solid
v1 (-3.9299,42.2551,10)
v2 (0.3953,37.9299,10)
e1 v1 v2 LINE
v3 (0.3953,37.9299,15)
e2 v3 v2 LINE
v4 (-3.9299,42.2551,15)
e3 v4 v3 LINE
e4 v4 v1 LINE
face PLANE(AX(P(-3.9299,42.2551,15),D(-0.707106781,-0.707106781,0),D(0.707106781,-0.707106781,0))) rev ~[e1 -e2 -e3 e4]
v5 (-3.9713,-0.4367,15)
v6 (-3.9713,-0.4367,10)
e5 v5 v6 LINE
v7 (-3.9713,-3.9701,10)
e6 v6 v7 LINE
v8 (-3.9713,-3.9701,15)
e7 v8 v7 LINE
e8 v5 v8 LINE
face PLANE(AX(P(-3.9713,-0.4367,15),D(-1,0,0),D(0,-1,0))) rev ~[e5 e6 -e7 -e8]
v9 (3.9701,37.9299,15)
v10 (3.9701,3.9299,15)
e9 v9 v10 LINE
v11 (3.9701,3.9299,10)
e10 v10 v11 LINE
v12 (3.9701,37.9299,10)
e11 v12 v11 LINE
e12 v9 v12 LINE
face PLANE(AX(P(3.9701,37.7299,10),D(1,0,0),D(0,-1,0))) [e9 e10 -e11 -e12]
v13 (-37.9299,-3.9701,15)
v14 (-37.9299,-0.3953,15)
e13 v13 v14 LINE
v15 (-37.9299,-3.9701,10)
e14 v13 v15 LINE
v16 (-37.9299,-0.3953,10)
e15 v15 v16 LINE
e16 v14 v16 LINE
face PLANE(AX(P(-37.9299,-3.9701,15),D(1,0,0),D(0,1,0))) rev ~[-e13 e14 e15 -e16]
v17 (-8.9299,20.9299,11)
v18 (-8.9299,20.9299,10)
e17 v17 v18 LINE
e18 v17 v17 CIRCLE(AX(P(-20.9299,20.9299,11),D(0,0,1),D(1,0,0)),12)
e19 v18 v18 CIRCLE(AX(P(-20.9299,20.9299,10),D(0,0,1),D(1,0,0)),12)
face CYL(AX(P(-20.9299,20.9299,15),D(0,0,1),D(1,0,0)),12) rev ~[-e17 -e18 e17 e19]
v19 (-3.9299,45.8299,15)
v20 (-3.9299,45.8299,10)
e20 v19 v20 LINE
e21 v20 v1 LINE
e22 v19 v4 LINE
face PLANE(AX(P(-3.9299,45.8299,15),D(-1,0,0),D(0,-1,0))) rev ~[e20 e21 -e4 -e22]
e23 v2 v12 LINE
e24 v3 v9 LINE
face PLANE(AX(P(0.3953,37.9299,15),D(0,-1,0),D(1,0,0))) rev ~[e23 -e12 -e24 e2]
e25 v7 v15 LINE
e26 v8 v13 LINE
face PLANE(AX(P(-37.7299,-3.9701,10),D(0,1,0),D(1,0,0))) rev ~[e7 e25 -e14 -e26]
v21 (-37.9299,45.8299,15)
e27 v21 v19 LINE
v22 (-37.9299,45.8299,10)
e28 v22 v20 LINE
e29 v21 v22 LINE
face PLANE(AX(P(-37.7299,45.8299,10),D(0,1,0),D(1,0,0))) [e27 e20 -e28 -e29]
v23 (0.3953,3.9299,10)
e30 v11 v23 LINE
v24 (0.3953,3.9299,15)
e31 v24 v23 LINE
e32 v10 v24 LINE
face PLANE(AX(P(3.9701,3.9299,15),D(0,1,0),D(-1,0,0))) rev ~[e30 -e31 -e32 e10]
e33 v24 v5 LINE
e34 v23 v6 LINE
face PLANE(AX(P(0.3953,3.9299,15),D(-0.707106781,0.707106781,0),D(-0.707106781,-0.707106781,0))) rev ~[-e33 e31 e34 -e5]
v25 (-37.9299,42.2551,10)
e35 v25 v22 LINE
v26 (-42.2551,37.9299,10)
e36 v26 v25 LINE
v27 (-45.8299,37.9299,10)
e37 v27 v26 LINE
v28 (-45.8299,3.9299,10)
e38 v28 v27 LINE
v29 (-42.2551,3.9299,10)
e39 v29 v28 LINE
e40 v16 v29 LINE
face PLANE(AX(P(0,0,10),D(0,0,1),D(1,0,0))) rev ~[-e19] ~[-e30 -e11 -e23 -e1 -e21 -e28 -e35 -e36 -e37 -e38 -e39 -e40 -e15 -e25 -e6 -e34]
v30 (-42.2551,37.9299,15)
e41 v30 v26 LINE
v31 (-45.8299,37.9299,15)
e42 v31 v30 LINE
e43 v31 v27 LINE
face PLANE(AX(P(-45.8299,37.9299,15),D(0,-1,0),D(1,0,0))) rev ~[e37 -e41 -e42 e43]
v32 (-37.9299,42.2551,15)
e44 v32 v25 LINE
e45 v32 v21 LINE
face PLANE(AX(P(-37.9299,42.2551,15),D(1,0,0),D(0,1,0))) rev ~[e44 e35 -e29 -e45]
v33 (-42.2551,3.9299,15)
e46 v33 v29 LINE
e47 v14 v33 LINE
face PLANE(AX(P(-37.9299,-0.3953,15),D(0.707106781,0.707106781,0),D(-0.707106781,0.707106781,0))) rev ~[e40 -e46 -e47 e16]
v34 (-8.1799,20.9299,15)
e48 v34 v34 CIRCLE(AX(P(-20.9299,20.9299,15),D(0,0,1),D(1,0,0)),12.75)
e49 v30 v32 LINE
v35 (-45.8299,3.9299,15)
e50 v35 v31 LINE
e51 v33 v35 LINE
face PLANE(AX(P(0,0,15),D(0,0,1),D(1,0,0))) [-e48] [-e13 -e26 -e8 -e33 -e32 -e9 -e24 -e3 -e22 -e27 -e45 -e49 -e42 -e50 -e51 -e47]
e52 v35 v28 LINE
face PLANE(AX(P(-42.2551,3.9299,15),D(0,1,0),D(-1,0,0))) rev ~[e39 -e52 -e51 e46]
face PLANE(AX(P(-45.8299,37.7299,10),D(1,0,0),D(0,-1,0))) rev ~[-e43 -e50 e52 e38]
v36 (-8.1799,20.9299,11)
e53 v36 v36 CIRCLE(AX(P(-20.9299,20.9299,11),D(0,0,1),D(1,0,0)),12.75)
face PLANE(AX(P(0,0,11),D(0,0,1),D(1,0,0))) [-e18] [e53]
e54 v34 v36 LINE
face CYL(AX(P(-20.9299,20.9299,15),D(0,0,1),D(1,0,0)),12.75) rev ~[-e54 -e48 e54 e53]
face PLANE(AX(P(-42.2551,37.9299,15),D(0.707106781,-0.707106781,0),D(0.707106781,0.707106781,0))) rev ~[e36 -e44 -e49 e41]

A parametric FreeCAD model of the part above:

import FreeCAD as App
import Part
import Sketcher
Q = App.Units.Quantity


def add_polygon(sketch, points):
    """Adds a closed chain of lines whose ends are joined by coincident constraints."""
    first, n = sketch.GeometryCount, len(points)
    for a, b in zip(points, points[1:] + points[:1]):
        sketch.addGeometry(Part.LineSegment(App.Vector(*a, 0), App.Vector(*b, 0)), False)
    for i in range(n):
        sketch.addConstraint(Sketcher.Constraint("Coincident", first + i, 2, first + (i + 1) % n, 1))

doc = App.newDocument("Part")
params = doc.addObject("Spreadsheet::Sheet", "Params")
for row, (alias, value) in enumerate([
    ("sketch1_width", "33.6 mm"),
    ("pad1_length", "5 mm"),
    ("sketch2_width", "0.2 mm"),
    ("pad2_length", "5 mm"),
    ("sketch3_diameter", "24 mm"),
    ("sketch4_diameter", "25.5 mm"),
    ("sketch4_diameter2", "24 mm"),
    ("pocket2_length", "4 mm"),
], start=1):
    params.set(f"A{row}", alias)
    params.set(f"B{row}", "=" + value)
    params.setAlias(f"B{row}", alias)

body = doc.addObject("PartDesign::Body", "Body")

sketch1 = body.newObject("Sketcher::SketchObject", "Sketch")
sketch1.AttachmentSupport = (doc.getObject("XY_Plane"), [""])
sketch1.MapMode = "FlatFace"
sketch1.AttachmentOffset = App.Placement(App.Vector(0, 0, 10), App.Rotation())
add_polygon(sketch1, [(-4.171, -0.354), (0.312, 4.13), (3.97, 4.13), (3.97, 37.73), (0.312, 37.73), (-4.13, 42.172), (-4.13, 45.83), (-37.73, 45.83), (-37.73, 42.172), (-42.172, 37.73), (-45.83, 37.73), (-45.83, 4.13), (-42.172, 4.13), (-37.689, -0.354), (-37.73, -0.354), (-37.73, -3.97), (-4.171, -3.97)])
sketch1.addConstraint([
    Sketcher.Constraint("Horizontal", 1),
    Sketcher.Constraint("Vertical", 2),
    Sketcher.Constraint("Horizontal", 3),
    Sketcher.Constraint("Vertical", 5),
    Sketcher.Constraint("Horizontal", 6),
    Sketcher.Constraint("Vertical", 7),
    Sketcher.Constraint("Horizontal", 9),
    Sketcher.Constraint("Vertical", 10),
    Sketcher.Constraint("Horizontal", 11),
    Sketcher.Constraint("Horizontal", 13),
    Sketcher.Constraint("Vertical", 14),
    Sketcher.Constraint("Horizontal", 15),
    Sketcher.Constraint("Vertical", 16),
    Sketcher.Constraint("Perpendicular", 0, 4),
    Sketcher.Constraint("Perpendicular", 4, 8),
    Sketcher.Constraint("Perpendicular", 8, 12),
    Sketcher.Constraint("Horizontal", 4, 2, 7, 2),
    Sketcher.Constraint("Horizontal", 3, 2, 8, 2),
    Sketcher.Constraint("Horizontal", 1, 2, 10, 2),
    Sketcher.Constraint("Horizontal", 13, 2, 16, 2),
    Sketcher.Constraint("Vertical", 0, 2, 3, 2),
    Sketcher.Constraint("Vertical", 8, 2, 11, 2),
    Sketcher.Constraint("Vertical", 7, 2, 13, 2),
    Sketcher.Constraint("Equal", 3, 9),
    Sketcher.Constraint("Equal", 6, 2),
    Sketcher.Constraint("Equal", 11, 5),
    Sketcher.Constraint("Equal", 4, 8),
    Sketcher.Constraint("DistanceX", 6, 2, 6, 1, Q("33.6 mm")),
    Sketcher.Constraint("DistanceX", 4, 2, 2, 2, Q("8.1 mm")),
    Sketcher.Constraint("DistanceY", 14, 2, 11, 2, Q("8.1 mm")),
    Sketcher.Constraint("DistanceY", -1, 1, 0, 2, Q("4.13 mm")),
    Sketcher.Constraint("DistanceX", -1, 1, 1, 2, Q("3.97 mm")),
    Sketcher.Constraint("Distance", 0, Q("6.341 mm")),
    Sketcher.Constraint("DistanceX", 1, 1, 1, 2, Q("3.6577 mm")),
])
sketch1.setExpression("Constraints[44]", "Params.sketch1_width")
pad1 = body.newObject("PartDesign::Pad", "Pad")
pad1.Profile = sketch1
pad1.setExpression("Length", "Params.pad1_length")

sketch2 = body.newObject("Sketcher::SketchObject", "Sketch001")
sketch2.AttachmentSupport = (doc.getObject("XY_Plane"), [""])
sketch2.MapMode = "FlatFace"
sketch2.AttachmentOffset = App.Placement(App.Vector(0, 0, 15), App.Rotation())
add_polygon(sketch2, [(3.97, 3.93), (3.97, 4.13), (0.312, 4.13), (-4.171, -0.354), (-4.171, -3.97), (-3.971, -3.97), (-3.971, -0.437), (0.395, 3.93)])
add_polygon(sketch2, [(-3.93, 45.83), (-4.13, 45.83), (-4.13, 42.172), (0.312, 37.73), (3.97, 37.73), (3.97, 37.93), (0.395, 37.93), (-3.93, 42.255)])
add_polygon(sketch2, [(-42.172, 37.73), (-37.73, 42.172), (-37.73, 45.83), (-37.93, 45.83), (-37.93, 42.255), (-42.255, 37.93), (-45.83, 37.93), (-45.83, 37.73)])
add_polygon(sketch2, [(-42.172, 4.13), (-45.83, 4.13), (-45.83, 3.93), (-42.255, 3.93), (-37.93, -0.395), (-37.93, -3.97), (-37.73, -3.97), (-37.73, -0.354), (-37.688, -0.354)])
sketch2.addConstraint([
    Sketcher.Constraint("Vertical", 0),
    Sketcher.Constraint("Horizontal", 1),
    Sketcher.Constraint("Vertical", 3),
    Sketcher.Constraint("Horizontal", 4),
    Sketcher.Constraint("Vertical", 5),
    Sketcher.Constraint("Horizontal", 7),
    Sketcher.Constraint("Horizontal", 8),
    Sketcher.Constraint("Vertical", 9),
    Sketcher.Constraint("Horizontal", 11),
    Sketcher.Constraint("Vertical", 12),
    Sketcher.Constraint("Horizontal", 13),
    Sketcher.Constraint("Vertical", 15),
    Sketcher.Constraint("Vertical", 17),
    Sketcher.Constraint("Horizontal", 18),
    Sketcher.Constraint("Vertical", 19),
    Sketcher.Constraint("Horizontal", 21),
    Sketcher.Constraint("Vertical", 22),
    Sketcher.Constraint("Horizontal", 23),
    Sketcher.Constraint("Horizontal", 24),
    Sketcher.Constraint("Vertical", 25),
    Sketcher.Constraint("Horizontal", 26),
    Sketcher.Constraint("Vertical", 28),
    Sketcher.Constraint("Horizontal", 29),
    Sketcher.Constraint("Vertical", 30),
    Sketcher.Constraint("Horizontal", 31),
    Sketcher.Constraint("Parallel", 2, 6),
    Sketcher.Constraint("Perpendicular", 6, 10),
    Sketcher.Constraint("Parallel", 10, 14),
    Sketcher.Constraint("Perpendicular", 14, 16),
    Sketcher.Constraint("Parallel", 16, 20),
    Sketcher.Constraint("Perpendicular", 20, 27),
    Sketcher.Constraint("Parallel", 27, 32),
    Sketcher.Constraint("Horizontal", 9, 2, 16, 2),
    Sketcher.Constraint("Horizontal", 15, 2, 17, 2),
    Sketcher.Constraint("Horizontal", 14, 2, 19, 2),
    Sketcher.Constraint("Horizontal", 13, 2, 20, 2),
    Sketcher.Constraint("Horizontal", 11, 2, 22, 2),
    Sketcher.Constraint("Horizontal", 1, 2, 24, 2),
    Sketcher.Constraint("Horizontal", 7, 2, 25, 2),
    Sketcher.Constraint("Horizontal", 4, 2, 28, 2),
    Sketcher.Constraint("Horizontal", 2, 2, 30, 2),
    Sketcher.Constraint("Vertical", 1, 2, 10, 2),
    Sketcher.Constraint("Vertical", 7, 2, 11, 2),
    Sketcher.Constraint("Vertical", 6, 2, 13, 2),
    Sketcher.Constraint("Vertical", 22, 2, 24, 2),
    Sketcher.Constraint("Vertical", 20, 2, 26, 2),
    Sketcher.Constraint("Vertical", 19, 2, 27, 2),
    Sketcher.Constraint("Vertical", 17, 2, 29, 2),
    Sketcher.Constraint("Vertical", 23, 2, 32, 2),
    Sketcher.Constraint("Equal", 4, 8),
    Sketcher.Constraint("Equal", 8, 18),
    Sketcher.Constraint("Equal", 13, 21),
    Sketcher.Constraint("Equal", 11, 23),
    Sketcher.Constraint("Equal", 29, 0),
    Sketcher.Constraint("Equal", 24, 9),
    Sketcher.Constraint("Equal", 0, 12),
    Sketcher.Constraint("Equal", 19, 28),
    Sketcher.Constraint("DistanceX", 4, 1, 4, 2, Q("0.2 mm")),
    Sketcher.Constraint("DistanceX", 18, 2, 15, 2, Q("34 mm")),
    Sketcher.Constraint("DistanceY", 25, 2, 21, 2, Q("34 mm")),
    Sketcher.Constraint("DistanceY", 3, 2, 1, 2, Q("8.1 mm")),
    Sketcher.Constraint("DistanceX", -1, 1, 0, 2, Q("3.97 mm")),
    Sketcher.Constraint("DistanceY", -1, 1, 0, 2, Q("4.13 mm")),
    Sketcher.Constraint("Distance", 2, Q("6.341 mm")),
    Sketcher.Constraint("DistanceX", 1, 2, 1, 1, Q("3.6577 mm")),
    Sketcher.Constraint("DistanceX", 7, 1, 7, 2, Q("3.5748 mm")),
])
sketch2.setExpression("Constraints[90]", "Params.sketch2_width")
pad2 = body.newObject("PartDesign::Pad", "Pad001")
pad2.Profile = sketch2
pad2.setExpression("Length", "Params.pad2_length")
pad2.Reversed = True

sketch3 = body.newObject("Sketcher::SketchObject", "Sketch002")
sketch3.AttachmentSupport = (doc.getObject("XY_Plane"), [""])
sketch3.MapMode = "FlatFace"
sketch3.AttachmentOffset = App.Placement(App.Vector(0, 0, 15), App.Rotation())
sketch3.addGeometry(Part.Circle(App.Vector(-21, 21, 0), App.Vector(0, 0, 1), 12), False)
sketch3.addConstraint([
    Sketcher.Constraint("Diameter", 0, Q("24 mm")),
    Sketcher.Constraint("DistanceX", 0, 3, -1, 1, Q("20.93 mm")),
    Sketcher.Constraint("DistanceY", -1, 1, 0, 3, Q("20.93 mm")),
])
sketch3.setExpression("Constraints[0]", "Params.sketch3_diameter")
pocket1 = body.newObject("PartDesign::Pocket", "Pocket")
pocket1.Profile = sketch3
pocket1.Type = "ThroughAll"

sketch4 = body.newObject("Sketcher::SketchObject", "Sketch003")
sketch4.AttachmentSupport = (doc.getObject("XY_Plane"), [""])
sketch4.MapMode = "FlatFace"
sketch4.AttachmentOffset = App.Placement(App.Vector(0, 0, 15), App.Rotation())
sketch4.addGeometry([
    Part.Circle(App.Vector(-21, 21, 0), App.Vector(0, 0, 1), 13),
    Part.Circle(App.Vector(-21, 21, 0), App.Vector(0, 0, 1), 12),
], False)
sketch4.addConstraint([
    Sketcher.Constraint("Coincident", 1, 3, 0, 3),
    Sketcher.Constraint("Diameter", 0, Q("25.5 mm")),
    Sketcher.Constraint("Diameter", 1, Q("24 mm")),
    Sketcher.Constraint("DistanceX", 0, 3, -1, 1, Q("20.93 mm")),
    Sketcher.Constraint("DistanceY", -1, 1, 0, 3, Q("20.93 mm")),
])
sketch4.setExpression("Constraints[1]", "Params.sketch4_diameter")
sketch4.setExpression("Constraints[2]", "Params.sketch4_diameter2")
pocket2 = body.newObject("PartDesign::Pocket", "Pocket001")
pocket2.Profile = sketch4
pocket2.setExpression("Length", "Params.pocket2_length")

doc.recompute()
